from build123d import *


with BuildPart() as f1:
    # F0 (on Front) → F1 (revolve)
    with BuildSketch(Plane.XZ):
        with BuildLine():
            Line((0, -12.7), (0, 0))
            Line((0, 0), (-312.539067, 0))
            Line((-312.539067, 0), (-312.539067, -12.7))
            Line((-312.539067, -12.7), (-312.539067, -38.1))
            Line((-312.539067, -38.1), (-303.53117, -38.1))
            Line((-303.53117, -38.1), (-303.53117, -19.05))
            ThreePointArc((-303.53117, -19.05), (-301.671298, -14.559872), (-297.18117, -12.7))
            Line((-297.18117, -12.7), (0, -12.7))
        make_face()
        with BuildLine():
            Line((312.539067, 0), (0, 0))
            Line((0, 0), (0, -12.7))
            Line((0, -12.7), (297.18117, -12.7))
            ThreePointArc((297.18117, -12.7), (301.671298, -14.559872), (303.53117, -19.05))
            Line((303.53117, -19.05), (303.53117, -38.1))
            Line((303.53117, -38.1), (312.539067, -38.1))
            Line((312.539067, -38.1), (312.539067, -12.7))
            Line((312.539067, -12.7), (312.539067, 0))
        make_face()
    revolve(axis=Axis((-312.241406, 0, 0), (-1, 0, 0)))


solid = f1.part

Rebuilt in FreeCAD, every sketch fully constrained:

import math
import FreeCAD as App
import Part
import Sketcher
Q = App.Units.Quantity

doc = App.newDocument("Part")
body = doc.addObject("PartDesign::Body", "Body")

# Sketch on XZ plane
sketch1 = body.newObject("Sketcher::SketchObject", "Sketch")
sketch1.AttachmentSupport = (doc.getObject("XZ_Plane"), [""])
sketch1.MapMode = "FlatFace"
sketch1.addGeometry(Part.LineSegment(App.Vector(-312.539067, 0, 0), App.Vector(-312.539067, -38.1, 0)), False)
sketch1.addGeometry(Part.LineSegment(App.Vector(-312.539067, -38.1, 0), App.Vector(-303.53117, -38.1, 0)), False)
sketch1.addGeometry(Part.LineSegment(App.Vector(-303.53117, -38.1, 0), App.Vector(-303.53117, -19.05, 0)), False)
sketch1.addGeometry(Part.ArcOfCircle(Part.Circle(App.Vector(-297.18117, -19.05, 0), App.Vector(0, 0, 1), 6.35), math.radians(90.000002), math.radians(179.999998)), False)
sketch1.addGeometry(Part.LineSegment(App.Vector(-297.18117, -12.7, 0), App.Vector(297.18117, -12.7, 0)), False)
sketch1.addGeometry(Part.ArcOfCircle(Part.Circle(App.Vector(297.18117, -19.05, 0), App.Vector(0, 0, 1), 6.35), math.radians(0.000002), math.radians(89.999998)), False)
sketch1.addGeometry(Part.LineSegment(App.Vector(303.53117, -19.05, 0), App.Vector(303.53117, -38.1, 0)), False)
sketch1.addGeometry(Part.LineSegment(App.Vector(303.53117, -38.1, 0), App.Vector(312.539067, -38.1, 0)), False)
sketch1.addGeometry(Part.LineSegment(App.Vector(312.539067, -38.1, 0), App.Vector(312.539067, 0, 0)), False)
sketch1.addGeometry(Part.LineSegment(App.Vector(312.539067, 0, 0), App.Vector(-312.539067, 0, 0)), False)
sketch1.addConstraint(Sketcher.Constraint("Coincident", 0, 2, 1, 1))
sketch1.addConstraint(Sketcher.Constraint("Coincident", 1, 2, 2, 1))
sketch1.addConstraint(Sketcher.Constraint("Tangent", 2, 2, 3, 2))
sketch1.addConstraint(Sketcher.Constraint("Tangent", 3, 1, 4, 1))
sketch1.addConstraint(Sketcher.Constraint("Tangent", 4, 2, 5, 2))
sketch1.addConstraint(Sketcher.Constraint("Tangent", 5, 1, 6, 1))
sketch1.addConstraint(Sketcher.Constraint("Coincident", 6, 2, 7, 1))
sketch1.addConstraint(Sketcher.Constraint("Coincident", 7, 2, 8, 1))
sketch1.addConstraint(Sketcher.Constraint("Coincident", 8, 2, 9, 1))
sketch1.addConstraint(Sketcher.Constraint("Coincident", 9, 2, 0, 1))
sketch1.addConstraint(Sketcher.Constraint("Vertical", 0))
sketch1.addConstraint(Sketcher.Constraint("Horizontal", 1))
sketch1.addConstraint(Sketcher.Constraint("Vertical", 2))
sketch1.addConstraint(Sketcher.Constraint("Horizontal", 4))
sketch1.addConstraint(Sketcher.Constraint("Vertical", 6))
sketch1.addConstraint(Sketcher.Constraint("Horizontal", 7))
sketch1.addConstraint(Sketcher.Constraint("Vertical", 8))
sketch1.addConstraint(Sketcher.Constraint("Horizontal", 9))
sketch1.addConstraint(Sketcher.Constraint("Equal", 3, 5))
sketch1.addConstraint(Sketcher.Constraint("Symmetric", 8, 2, 9, 2, -1, 1))
sketch1.addConstraint(Sketcher.Constraint("Symmetric", 1, 2, 6, 2, -2))
sketch1.addConstraint(Sketcher.Constraint("Radius", 3, Q("0.25 in")))
sketch1.addConstraint(Sketcher.Constraint("DistanceY", 0, 2, 0, 1, Q("1.5 in")))
sketch1.addConstraint(Sketcher.Constraint("DistanceY", 1, 2, 3, 1, Q("1 in")))
sketch1.addConstraint(Sketcher.Constraint("DistanceX", 4, 1, 4, 2, Q("594.36234 mm")))
sketch1.addConstraint(Sketcher.Constraint("DistanceX", 1, 1, 1, 2, Q("9.007897 mm")))
revolution = body.newObject("PartDesign::Revolution", "Revolution")
revolution.Profile = sketch1
revolution.ReferenceAxis = (sketch1, ["H_Axis"])
revolution.Angle = 360

doc.recompute()
